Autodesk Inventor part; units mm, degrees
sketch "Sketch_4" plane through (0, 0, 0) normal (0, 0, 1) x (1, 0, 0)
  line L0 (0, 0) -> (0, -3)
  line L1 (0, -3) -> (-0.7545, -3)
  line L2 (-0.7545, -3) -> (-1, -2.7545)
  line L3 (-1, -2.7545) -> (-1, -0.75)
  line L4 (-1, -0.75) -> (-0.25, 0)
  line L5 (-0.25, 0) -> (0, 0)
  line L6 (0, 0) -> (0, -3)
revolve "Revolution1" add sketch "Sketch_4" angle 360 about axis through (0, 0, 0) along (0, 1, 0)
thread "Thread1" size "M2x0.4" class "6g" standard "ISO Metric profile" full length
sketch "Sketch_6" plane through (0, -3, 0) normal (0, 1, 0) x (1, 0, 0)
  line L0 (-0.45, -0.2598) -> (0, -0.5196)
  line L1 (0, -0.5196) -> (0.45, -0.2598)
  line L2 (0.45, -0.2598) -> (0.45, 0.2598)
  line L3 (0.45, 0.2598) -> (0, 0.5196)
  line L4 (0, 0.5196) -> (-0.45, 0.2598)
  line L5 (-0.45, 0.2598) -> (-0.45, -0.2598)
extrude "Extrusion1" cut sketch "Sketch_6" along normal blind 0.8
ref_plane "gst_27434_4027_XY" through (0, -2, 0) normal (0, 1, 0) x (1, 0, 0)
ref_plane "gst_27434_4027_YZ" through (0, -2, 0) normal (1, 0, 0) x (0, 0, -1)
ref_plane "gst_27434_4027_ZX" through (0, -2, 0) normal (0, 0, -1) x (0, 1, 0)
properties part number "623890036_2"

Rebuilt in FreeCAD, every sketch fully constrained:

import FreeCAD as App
import Part
import Sketcher

V = App.Vector
Q = App.Units.Quantity

doc = App.newDocument("Part")
params = doc.addObject("Spreadsheet::Sheet", "Params")
for row, (alias, value) in enumerate([
    ("sketch1_height", "3 mm"),
    ("sketch1_width", "0.25 mm"),
    ("revolution_angle", "360 deg"),
    ("pocket1_length", "0.8 mm"),
], start=1):
    params.set(f"A{row}", alias)
    params.set(f"B{row}", "=" + value)
    params.setAlias(f"B{row}", alias)

body = doc.addObject("PartDesign::Body", "Body")

# Sketch on XY plane
sketch1 = doc.addObject("Sketcher::SketchObject", "Sketch")
body.addObject(sketch1)
sketch1.AttachmentSupport = (doc.XY_Plane, [""])
sketch1.MapMode = "FlatFace"
sketch1.addGeometry(Part.LineSegment(V(0, -3, 0), V(0, 0, 0)), False)
sketch1.addGeometry(Part.LineSegment(V(0, 0, 0), V(-0.25, 0, 0)), False)
sketch1.addGeometry(Part.LineSegment(V(-0.25, 0, 0), V(-1, -0.75, 0)), False)
sketch1.addGeometry(Part.LineSegment(V(-1, -0.75, 0), V(-1, -2.7545, 0)), False)
sketch1.addGeometry(Part.LineSegment(V(-1, -2.7545, 0), V(-0.7545, -3, 0)), False)
sketch1.addGeometry(Part.LineSegment(V(-0.7545, -3, 0), V(0, -3, 0)), False)
sketch1.addConstraint(Sketcher.Constraint("Coincident", 0, 2, 1, 1))
sketch1.addConstraint(Sketcher.Constraint("Coincident", 1, 2, 2, 1))
sketch1.addConstraint(Sketcher.Constraint("Coincident", 2, 2, 3, 1))
sketch1.addConstraint(Sketcher.Constraint("Coincident", 3, 2, 4, 1))
sketch1.addConstraint(Sketcher.Constraint("Coincident", 4, 2, 5, 1))
sketch1.addConstraint(Sketcher.Constraint("Coincident", 5, 2, 0, 1))
sketch1.addConstraint(Sketcher.Constraint("Vertical", 0))
sketch1.addConstraint(Sketcher.Constraint("Horizontal", 1))
sketch1.addConstraint(Sketcher.Constraint("Vertical", 3))
sketch1.addConstraint(Sketcher.Constraint("Horizontal", 5))
sketch1.addConstraint(Sketcher.Constraint("Coincident", 0, 2, -1, 1))
sketch1.addConstraint(Sketcher.Constraint("Perpendicular", 2, 4))
sketch1.addConstraint(Sketcher.Constraint("DistanceY", 0, 1, 0, 2, Q("3 mm")))
sketch1.addConstraint(Sketcher.Constraint("Angle", 2, Q("-135 deg")))
sketch1.addConstraint(Sketcher.Constraint("DistanceX", 2, 2, -1, 1, Q("1 mm")))
sketch1.addConstraint(Sketcher.Constraint("DistanceX", 1, 2, 1, 1, Q("0.25 mm")))
sketch1.addConstraint(Sketcher.Constraint("DistanceX", 5, 1, 5, 2, Q("0.7545 mm")))
sketch1.setExpression("Constraints[12]", "Params.sketch1_height")
sketch1.setExpression("Constraints[15]", "Params.sketch1_width")
revolution = doc.addObject("PartDesign::Revolution", "Revolution")
body.addObject(revolution)
revolution.Profile = sketch1
revolution.ReferenceAxis = (sketch1, ["V_Axis"])
revolution.setExpression("Angle", "Params.revolution_angle")

# Sketch on XZ plane
sketch2 = doc.addObject("Sketcher::SketchObject", "Sketch001")
body.addObject(sketch2)
sketch2.AttachmentSupport = (doc.XZ_Plane, [""])
sketch2.MapMode = "FlatFace"
sketch2.AttachmentOffset = App.Placement(V(0, 0, 3), App.Rotation())
sketch2.addGeometry(Part.LineSegment(V(-0.45, -0.2598, 0), V(-0.45, 0.2598, 0)), False)
sketch2.addGeometry(Part.LineSegment(V(-0.45, 0.2598, 0), V(0, 0.5196, 0)), False)
sketch2.addGeometry(Part.LineSegment(V(0, 0.5196, 0), V(0.45, 0.2598, 0)), False)
sketch2.addGeometry(Part.LineSegment(V(0.45, 0.2598, 0), V(0.45, -0.2598, 0)), False)
sketch2.addGeometry(Part.LineSegment(V(0.45, -0.2598, 0), V(0, -0.5196, 0)), False)
sketch2.addGeometry(Part.LineSegment(V(0, -0.5196, 0), V(-0.45, -0.2598, 0)), False)
sketch2.addConstraint(Sketcher.Constraint("Coincident", 0, 2, 1, 1))
sketch2.addConstraint(Sketcher.Constraint("Coincident", 1, 2, 2, 1))
sketch2.addConstraint(Sketcher.Constraint("Coincident", 2, 2, 3, 1))
sketch2.addConstraint(Sketcher.Constraint("Coincident", 3, 2, 4, 1))
sketch2.addConstraint(Sketcher.Constraint("Coincident", 4, 2, 5, 1))
sketch2.addConstraint(Sketcher.Constraint("Coincident", 5, 2, 0, 1))
sketch2.addConstraint(Sketcher.Constraint("Vertical", 0))
sketch2.addConstraint(Sketcher.Constraint("Vertical", 3))
sketch2.addConstraint(Sketcher.Constraint("Symmetric", 0, 2, 3, 2, -1, 1))
sketch2.addConstraint(Sketcher.Constraint("Symmetric", 1, 2, 4, 2, -1, 1))
sketch2.addConstraint(Sketcher.Constraint("PointOnObject", 1, 2, -2))
sketch2.addConstraint(Sketcher.Constraint("Parallel", 2, 5))
sketch2.addConstraint(Sketcher.Constraint("Horizontal", 0, 2, 2, 2))
sketch2.addConstraint(Sketcher.Constraint("Angle", 1, Q("29.9993 deg")))
sketch2.addConstraint(Sketcher.Constraint("DistanceX", 0, 2, 2, 2, Q("0.9 mm")))
sketch2.addConstraint(Sketcher.Constraint("DistanceY", 0, 1, 0, 2, Q("0.5196 mm")))
pocket1 = doc.addObject("PartDesign::Pocket", "Pocket")
body.addObject(pocket1)
pocket1.Profile = sketch2
pocket1.setExpression("Length", "Params.pocket1_length")

doc.recompute()
